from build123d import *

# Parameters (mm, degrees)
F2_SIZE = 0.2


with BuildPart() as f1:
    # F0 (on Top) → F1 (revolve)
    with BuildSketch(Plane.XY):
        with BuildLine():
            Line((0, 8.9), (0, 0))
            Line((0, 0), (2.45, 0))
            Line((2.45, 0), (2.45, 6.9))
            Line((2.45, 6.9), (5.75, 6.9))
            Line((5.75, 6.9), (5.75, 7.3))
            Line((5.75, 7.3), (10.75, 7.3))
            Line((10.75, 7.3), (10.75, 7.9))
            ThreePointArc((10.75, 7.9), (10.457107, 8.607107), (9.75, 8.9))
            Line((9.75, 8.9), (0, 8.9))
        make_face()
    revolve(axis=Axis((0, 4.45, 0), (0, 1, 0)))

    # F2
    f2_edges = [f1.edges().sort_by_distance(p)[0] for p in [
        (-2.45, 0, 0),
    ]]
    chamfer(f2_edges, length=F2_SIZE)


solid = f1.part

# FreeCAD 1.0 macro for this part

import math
import FreeCAD as App
import Part
import Sketcher

V = App.Vector
Q = App.Units.Quantity


def edges_at(feature, points):
    """Names of the edges that pass closest to the given points."""
    edges = feature.Shape.Edges
    near = lambda p: min(range(len(edges)), key=lambda i: edges[i].distToShape(Part.Vertex(*p))[0])
    return sorted({f"Edge{near(p) + 1}" for p in points})

doc = App.newDocument("Part")
params = doc.addObject("Spreadsheet::Sheet", "Params")
for row, (alias, value) in enumerate([
    ("sketch1_radius", "0.999999 mm"),
    ("sketch1_width", "5 mm"),
    ("sketch1_width2", "3.3 mm"),
    ("sketch1_height", "8.9 mm"),
    ("sketch1_height2", "6.9 mm"),
    ("revolution_angle", "360 deg"),
    ("chamfer_size", "0.2 mm"),
], start=1):
    params.set(f"A{row}", alias)
    params.set(f"B{row}", "=" + value)
    params.setAlias(f"B{row}", alias)

body = doc.addObject("PartDesign::Body", "Body")

sketch1 = body.newObject("Sketcher::SketchObject", "Sketch")
sketch1.AttachmentSupport = (doc.getObject("XY_Plane"), [""])
sketch1.MapMode = "FlatFace"
sketch1.addGeometry(Part.LineSegment(V(0, 8.9, 0), V(0, 0, 0)), False)
sketch1.addGeometry(Part.LineSegment(V(0, 0, 0), V(2.45, 0, 0)), False)
sketch1.addGeometry(Part.LineSegment(V(2.45, 0, 0), V(2.45, 6.9, 0)), False)
sketch1.addGeometry(Part.LineSegment(V(2.45, 6.9, 0), V(5.75, 6.9, 0)), False)
sketch1.addGeometry(Part.LineSegment(V(5.75, 6.9, 0), V(5.75, 7.3, 0)), False)
sketch1.addGeometry(Part.LineSegment(V(5.75, 7.3, 0), V(10.75, 7.3, 0)), False)
sketch1.addGeometry(Part.LineSegment(V(10.75, 7.3, 0), V(10.75, 7.9, 0)), False)
sketch1.addGeometry(Part.ArcOfCircle(Part.Circle(V(9.75, 7.9, 0), V(0, 0, 1), 1), math.radians(0), math.radians(90)), False)
sketch1.addGeometry(Part.LineSegment(V(9.75, 8.9, 0), V(0, 8.9, 0)), False)
sketch1.addConstraint(Sketcher.Constraint("Coincident", 0, 2, 1, 1))
sketch1.addConstraint(Sketcher.Constraint("Coincident", 1, 2, 2, 1))
sketch1.addConstraint(Sketcher.Constraint("Coincident", 2, 2, 3, 1))
sketch1.addConstraint(Sketcher.Constraint("Coincident", 3, 2, 4, 1))
sketch1.addConstraint(Sketcher.Constraint("Coincident", 4, 2, 5, 1))
sketch1.addConstraint(Sketcher.Constraint("Coincident", 5, 2, 6, 1))
sketch1.addConstraint(Sketcher.Constraint("Tangent", 6, 2, 7, 1))
sketch1.addConstraint(Sketcher.Constraint("Tangent", 7, 2, 8, 1))
sketch1.addConstraint(Sketcher.Constraint("Coincident", 8, 2, 0, 1))
sketch1.addConstraint(Sketcher.Constraint("Vertical", 0))
sketch1.addConstraint(Sketcher.Constraint("Horizontal", 1))
sketch1.addConstraint(Sketcher.Constraint("Vertical", 2))
sketch1.addConstraint(Sketcher.Constraint("Horizontal", 3))
sketch1.addConstraint(Sketcher.Constraint("Vertical", 4))
sketch1.addConstraint(Sketcher.Constraint("Horizontal", 5))
sketch1.addConstraint(Sketcher.Constraint("Vertical", 6))
sketch1.addConstraint(Sketcher.Constraint("Horizontal", 8))
sketch1.addConstraint(Sketcher.Constraint("Coincident", 0, 2, -1, 1))
sketch1.addConstraint(Sketcher.Constraint("Radius", 7, Q("0.999999 mm")))
sketch1.addConstraint(Sketcher.Constraint("DistanceX", 5, 1, 5, 2, Q("5 mm")))
sketch1.addConstraint(Sketcher.Constraint("DistanceX", 3, 1, 3, 2, Q("3.3 mm")))
sketch1.addConstraint(Sketcher.Constraint("DistanceY", 0, 2, 0, 1, Q("8.9 mm")))
sketch1.addConstraint(Sketcher.Constraint("DistanceY", 2, 1, 2, 2, Q("6.9 mm")))
sketch1.addConstraint(Sketcher.Constraint("DistanceY", 4, 1, 4, 2, Q("0.4 mm")))
sketch1.addConstraint(Sketcher.Constraint("DistanceX", 1, 1, 1, 2, Q("2.45 mm")))
sketch1.setExpression("Constraints[18]", "Params.sketch1_radius")
sketch1.setExpression("Constraints[19]", "Params.sketch1_width")
sketch1.setExpression("Constraints[20]", "Params.sketch1_width2")
sketch1.setExpression("Constraints[21]", "Params.sketch1_height")
sketch1.setExpression("Constraints[22]", "Params.sketch1_height2")
revolution = body.newObject("PartDesign::Revolution", "Revolution")
revolution.Profile = sketch1
revolution.ReferenceAxis = (sketch1, ["V_Axis"])
revolution.setExpression("Angle", "Params.revolution_angle")
doc.recompute()

chamfer = body.newObject("PartDesign::Chamfer", "Chamfer")
chamfer.Base = (revolution, edges_at(revolution, [(-2.45, 0, 0)]))
chamfer.setExpression("Size", "Params.chamfer_size")

doc.recompute()
